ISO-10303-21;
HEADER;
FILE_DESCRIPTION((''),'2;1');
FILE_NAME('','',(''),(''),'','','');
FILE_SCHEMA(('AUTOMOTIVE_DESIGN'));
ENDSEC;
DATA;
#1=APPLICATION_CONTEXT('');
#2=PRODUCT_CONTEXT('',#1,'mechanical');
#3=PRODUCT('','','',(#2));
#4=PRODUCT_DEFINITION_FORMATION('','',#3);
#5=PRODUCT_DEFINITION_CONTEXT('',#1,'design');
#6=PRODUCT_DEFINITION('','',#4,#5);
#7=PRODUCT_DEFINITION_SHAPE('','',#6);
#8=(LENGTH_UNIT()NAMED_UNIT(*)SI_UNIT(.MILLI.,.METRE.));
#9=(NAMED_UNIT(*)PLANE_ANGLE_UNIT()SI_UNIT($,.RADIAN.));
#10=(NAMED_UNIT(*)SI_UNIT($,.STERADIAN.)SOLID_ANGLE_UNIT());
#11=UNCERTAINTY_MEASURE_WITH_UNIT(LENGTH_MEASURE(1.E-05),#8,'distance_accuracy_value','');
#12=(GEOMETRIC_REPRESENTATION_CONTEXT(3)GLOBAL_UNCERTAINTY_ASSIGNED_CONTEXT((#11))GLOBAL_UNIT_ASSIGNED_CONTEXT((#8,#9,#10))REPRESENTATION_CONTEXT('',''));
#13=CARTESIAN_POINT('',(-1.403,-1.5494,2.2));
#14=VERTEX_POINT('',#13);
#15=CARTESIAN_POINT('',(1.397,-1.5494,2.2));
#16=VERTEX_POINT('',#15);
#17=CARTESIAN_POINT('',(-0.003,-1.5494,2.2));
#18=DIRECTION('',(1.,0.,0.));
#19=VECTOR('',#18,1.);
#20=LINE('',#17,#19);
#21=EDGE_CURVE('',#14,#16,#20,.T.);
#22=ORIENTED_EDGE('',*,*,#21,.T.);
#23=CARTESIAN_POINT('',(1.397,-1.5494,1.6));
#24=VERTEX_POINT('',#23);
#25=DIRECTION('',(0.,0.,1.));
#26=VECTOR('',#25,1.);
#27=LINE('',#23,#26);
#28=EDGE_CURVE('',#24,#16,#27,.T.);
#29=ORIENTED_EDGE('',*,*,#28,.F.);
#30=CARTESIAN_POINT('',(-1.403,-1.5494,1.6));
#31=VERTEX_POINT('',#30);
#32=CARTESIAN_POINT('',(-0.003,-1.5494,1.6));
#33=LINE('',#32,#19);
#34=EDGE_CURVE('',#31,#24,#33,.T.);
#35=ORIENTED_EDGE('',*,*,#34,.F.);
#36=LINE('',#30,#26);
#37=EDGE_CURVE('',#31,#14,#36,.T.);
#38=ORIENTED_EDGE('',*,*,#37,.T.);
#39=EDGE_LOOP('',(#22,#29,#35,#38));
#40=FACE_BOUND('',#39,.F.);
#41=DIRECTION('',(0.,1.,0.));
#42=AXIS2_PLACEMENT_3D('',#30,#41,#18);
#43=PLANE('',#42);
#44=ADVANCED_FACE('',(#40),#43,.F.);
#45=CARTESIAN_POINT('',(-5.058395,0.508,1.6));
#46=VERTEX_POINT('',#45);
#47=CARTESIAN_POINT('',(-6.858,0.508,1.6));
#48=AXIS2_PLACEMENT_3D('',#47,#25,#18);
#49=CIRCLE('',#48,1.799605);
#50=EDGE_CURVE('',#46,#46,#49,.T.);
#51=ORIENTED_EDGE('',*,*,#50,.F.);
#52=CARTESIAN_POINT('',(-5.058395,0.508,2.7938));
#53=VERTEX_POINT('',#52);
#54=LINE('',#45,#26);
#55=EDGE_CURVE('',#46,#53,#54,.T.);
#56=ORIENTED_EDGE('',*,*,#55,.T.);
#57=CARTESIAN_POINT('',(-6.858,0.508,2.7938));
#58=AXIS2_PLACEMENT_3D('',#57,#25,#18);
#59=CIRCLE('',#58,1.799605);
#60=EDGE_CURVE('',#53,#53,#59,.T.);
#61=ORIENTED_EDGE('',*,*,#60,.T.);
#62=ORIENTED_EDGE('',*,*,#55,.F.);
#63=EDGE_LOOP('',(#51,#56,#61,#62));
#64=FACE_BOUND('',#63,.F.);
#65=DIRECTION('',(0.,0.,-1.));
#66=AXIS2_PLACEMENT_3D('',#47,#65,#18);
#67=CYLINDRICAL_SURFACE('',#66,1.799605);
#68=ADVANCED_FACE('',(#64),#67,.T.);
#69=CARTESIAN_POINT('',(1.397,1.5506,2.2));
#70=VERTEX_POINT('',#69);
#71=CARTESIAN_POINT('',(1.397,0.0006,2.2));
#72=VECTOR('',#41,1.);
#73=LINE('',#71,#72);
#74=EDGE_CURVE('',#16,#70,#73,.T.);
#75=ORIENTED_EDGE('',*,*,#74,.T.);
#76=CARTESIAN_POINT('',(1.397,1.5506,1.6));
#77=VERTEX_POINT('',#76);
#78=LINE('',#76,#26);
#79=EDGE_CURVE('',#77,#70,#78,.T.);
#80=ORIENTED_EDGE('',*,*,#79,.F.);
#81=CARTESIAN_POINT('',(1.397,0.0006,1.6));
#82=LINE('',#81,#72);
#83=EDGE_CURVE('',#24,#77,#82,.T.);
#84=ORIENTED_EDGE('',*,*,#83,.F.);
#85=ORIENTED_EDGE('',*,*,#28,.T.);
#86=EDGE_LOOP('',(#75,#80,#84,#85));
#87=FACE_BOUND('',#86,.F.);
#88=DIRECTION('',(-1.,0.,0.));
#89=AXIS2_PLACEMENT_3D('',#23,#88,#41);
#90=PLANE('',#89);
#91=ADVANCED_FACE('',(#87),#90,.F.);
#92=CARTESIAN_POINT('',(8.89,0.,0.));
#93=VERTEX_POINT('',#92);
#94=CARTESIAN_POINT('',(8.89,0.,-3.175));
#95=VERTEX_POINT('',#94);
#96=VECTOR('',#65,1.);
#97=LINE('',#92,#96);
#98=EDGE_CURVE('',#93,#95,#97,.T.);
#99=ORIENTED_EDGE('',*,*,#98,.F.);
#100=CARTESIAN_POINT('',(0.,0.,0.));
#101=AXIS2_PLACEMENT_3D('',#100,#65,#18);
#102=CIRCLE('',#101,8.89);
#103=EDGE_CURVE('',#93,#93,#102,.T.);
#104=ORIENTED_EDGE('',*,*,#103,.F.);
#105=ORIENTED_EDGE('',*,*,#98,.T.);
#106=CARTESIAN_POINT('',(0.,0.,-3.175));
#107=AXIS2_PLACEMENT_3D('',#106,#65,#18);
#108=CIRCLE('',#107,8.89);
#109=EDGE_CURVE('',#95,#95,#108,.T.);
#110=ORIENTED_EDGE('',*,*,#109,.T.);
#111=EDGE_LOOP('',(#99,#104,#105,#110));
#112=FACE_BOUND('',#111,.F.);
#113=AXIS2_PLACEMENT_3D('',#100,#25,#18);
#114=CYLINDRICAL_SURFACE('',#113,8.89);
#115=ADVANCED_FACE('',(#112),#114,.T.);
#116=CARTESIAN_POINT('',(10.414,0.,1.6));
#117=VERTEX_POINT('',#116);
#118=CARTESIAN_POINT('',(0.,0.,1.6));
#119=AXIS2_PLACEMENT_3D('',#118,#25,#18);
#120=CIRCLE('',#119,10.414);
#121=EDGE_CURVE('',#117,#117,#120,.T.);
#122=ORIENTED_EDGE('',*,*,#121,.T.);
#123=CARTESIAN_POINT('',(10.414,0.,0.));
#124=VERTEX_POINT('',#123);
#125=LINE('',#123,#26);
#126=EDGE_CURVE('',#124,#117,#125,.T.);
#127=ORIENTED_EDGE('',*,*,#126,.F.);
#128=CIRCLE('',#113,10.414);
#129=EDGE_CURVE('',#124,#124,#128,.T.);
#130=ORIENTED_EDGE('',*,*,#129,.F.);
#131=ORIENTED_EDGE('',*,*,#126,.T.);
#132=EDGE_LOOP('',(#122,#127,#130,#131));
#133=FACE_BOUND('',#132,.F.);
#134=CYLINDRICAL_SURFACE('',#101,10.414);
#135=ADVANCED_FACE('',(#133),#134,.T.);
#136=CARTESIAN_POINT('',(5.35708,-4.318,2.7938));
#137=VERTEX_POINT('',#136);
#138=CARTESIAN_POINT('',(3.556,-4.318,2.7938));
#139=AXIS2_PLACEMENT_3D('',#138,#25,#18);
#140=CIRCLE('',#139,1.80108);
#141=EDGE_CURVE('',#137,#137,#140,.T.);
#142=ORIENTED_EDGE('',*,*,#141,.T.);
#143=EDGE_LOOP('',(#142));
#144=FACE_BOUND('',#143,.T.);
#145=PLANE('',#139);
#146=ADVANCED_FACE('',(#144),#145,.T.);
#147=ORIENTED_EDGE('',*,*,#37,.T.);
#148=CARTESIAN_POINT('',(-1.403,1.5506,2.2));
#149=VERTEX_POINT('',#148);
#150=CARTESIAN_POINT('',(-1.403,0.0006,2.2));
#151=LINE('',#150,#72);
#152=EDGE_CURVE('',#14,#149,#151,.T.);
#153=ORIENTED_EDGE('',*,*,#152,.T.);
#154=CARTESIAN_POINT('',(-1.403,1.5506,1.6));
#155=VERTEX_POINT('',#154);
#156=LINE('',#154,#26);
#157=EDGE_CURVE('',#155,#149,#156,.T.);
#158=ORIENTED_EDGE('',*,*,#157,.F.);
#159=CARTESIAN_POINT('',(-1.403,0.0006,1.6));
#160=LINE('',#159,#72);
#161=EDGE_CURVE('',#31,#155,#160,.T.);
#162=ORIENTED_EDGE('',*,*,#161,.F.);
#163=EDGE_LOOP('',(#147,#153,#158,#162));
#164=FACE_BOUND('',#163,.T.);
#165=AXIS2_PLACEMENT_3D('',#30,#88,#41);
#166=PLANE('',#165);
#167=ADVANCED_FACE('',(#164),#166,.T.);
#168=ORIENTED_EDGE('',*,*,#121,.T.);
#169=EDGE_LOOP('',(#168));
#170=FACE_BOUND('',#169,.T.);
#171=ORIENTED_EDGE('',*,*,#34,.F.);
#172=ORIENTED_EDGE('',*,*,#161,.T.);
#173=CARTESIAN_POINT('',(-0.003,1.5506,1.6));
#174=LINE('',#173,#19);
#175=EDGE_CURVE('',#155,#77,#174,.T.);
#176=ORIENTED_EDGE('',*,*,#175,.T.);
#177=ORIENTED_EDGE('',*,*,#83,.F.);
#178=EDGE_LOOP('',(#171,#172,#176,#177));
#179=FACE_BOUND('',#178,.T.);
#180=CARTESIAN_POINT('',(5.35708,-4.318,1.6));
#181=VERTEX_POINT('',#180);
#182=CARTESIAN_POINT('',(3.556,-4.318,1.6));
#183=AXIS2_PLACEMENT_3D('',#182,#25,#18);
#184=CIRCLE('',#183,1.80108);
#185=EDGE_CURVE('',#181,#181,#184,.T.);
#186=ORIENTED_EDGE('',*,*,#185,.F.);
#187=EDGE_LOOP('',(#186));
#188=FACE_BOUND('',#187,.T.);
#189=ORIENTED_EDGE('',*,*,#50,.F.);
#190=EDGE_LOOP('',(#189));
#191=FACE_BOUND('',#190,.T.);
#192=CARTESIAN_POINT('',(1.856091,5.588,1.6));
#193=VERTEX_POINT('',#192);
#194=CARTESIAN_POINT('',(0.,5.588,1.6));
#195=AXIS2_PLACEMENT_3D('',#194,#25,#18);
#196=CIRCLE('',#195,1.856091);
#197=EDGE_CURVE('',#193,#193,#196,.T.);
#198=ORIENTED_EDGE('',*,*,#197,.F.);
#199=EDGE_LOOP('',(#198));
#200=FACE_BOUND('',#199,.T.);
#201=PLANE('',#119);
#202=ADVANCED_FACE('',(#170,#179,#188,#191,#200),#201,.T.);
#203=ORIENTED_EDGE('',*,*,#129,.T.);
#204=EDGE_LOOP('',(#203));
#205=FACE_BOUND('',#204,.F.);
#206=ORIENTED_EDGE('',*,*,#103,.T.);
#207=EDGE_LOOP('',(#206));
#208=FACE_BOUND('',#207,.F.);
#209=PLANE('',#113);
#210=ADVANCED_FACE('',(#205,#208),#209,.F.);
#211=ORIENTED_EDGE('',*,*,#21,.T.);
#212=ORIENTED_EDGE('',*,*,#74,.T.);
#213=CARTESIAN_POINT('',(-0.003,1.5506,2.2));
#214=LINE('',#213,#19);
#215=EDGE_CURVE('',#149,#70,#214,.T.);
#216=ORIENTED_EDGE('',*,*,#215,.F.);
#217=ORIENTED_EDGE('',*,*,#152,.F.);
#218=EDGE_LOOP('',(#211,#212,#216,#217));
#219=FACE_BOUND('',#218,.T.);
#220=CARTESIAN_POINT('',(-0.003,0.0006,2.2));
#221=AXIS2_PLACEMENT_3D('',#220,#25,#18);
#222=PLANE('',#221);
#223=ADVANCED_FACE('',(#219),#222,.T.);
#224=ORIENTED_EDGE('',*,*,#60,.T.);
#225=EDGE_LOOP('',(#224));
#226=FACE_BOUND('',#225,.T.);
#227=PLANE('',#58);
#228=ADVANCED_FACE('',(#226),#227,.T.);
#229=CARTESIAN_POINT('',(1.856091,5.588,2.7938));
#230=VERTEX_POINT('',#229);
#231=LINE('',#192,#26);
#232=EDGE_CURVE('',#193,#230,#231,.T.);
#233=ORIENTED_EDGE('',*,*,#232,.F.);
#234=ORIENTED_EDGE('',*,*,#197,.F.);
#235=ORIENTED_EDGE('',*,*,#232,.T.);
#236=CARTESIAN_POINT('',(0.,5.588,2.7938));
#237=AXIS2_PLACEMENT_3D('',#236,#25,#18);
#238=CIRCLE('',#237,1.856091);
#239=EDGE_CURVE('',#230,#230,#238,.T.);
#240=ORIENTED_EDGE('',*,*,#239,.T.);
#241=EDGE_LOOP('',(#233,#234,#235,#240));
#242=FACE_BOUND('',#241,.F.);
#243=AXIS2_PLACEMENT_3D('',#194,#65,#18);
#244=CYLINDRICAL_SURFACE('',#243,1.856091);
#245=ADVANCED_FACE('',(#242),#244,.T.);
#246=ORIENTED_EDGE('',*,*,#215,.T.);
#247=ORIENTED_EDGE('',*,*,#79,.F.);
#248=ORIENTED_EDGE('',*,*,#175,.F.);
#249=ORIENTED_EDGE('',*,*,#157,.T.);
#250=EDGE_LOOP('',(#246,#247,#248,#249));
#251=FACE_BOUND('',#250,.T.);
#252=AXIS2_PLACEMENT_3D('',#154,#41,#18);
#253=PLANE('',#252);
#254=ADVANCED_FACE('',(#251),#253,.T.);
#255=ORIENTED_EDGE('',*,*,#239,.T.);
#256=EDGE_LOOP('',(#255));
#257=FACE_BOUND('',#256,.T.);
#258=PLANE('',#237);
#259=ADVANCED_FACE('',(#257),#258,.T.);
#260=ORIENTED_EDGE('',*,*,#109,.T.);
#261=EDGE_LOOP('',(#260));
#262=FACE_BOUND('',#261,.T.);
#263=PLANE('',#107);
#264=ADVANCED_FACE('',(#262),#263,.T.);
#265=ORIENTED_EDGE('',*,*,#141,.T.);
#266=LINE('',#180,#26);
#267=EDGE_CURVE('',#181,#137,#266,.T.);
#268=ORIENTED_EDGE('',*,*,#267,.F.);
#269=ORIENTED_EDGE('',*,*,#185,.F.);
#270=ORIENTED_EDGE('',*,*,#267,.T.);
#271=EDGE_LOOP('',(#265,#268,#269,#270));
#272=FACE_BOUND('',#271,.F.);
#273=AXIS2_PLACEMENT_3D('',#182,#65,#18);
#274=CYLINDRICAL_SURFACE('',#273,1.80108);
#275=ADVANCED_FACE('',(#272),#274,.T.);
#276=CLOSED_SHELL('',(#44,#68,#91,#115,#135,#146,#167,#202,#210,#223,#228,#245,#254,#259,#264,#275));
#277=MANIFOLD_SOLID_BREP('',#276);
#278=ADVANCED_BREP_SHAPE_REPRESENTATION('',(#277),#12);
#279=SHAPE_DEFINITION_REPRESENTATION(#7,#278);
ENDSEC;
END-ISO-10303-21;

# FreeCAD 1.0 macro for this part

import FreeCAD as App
import Part
import Sketcher

V = App.Vector
Q = App.Units.Quantity

doc = App.newDocument("Part")
body = doc.addObject("PartDesign::Body", "Body")

sketch1 = doc.addObject("Sketcher::SketchObject", "Sketch")
body.addObject(sketch1)
sketch1.AttachmentSupport = (doc.XY_Plane, [""])
sketch1.MapMode = "FlatFace"
sketch1.addGeometry(Part.Circle(V(0, 0, 0), V(0, 0, 1), 10.414), False)
sketch1.addConstraint(Sketcher.Constraint("Coincident", 0, 3, -1, 1))
sketch1.addConstraint(Sketcher.Constraint("Diameter", 0, Q("20.828 mm")))
pad1 = doc.addObject("PartDesign::Pad", "Pad")
body.addObject(pad1)
pad1.Profile = sketch1
pad1.Length = 1.6

sketch2 = doc.addObject("Sketcher::SketchObject", "Sketch001")
body.addObject(sketch2)
sketch2.AttachmentSupport = (doc.XY_Plane, [""])
sketch2.MapMode = "FlatFace"
sketch2.addGeometry(Part.Circle(V(0, 0, 0), V(0, 0, 1), 8.89), False)
sketch2.addConstraint(Sketcher.Constraint("Coincident", 0, 3, -1, 1))
sketch2.addConstraint(Sketcher.Constraint("Diameter", 0, Q("17.78 mm")))
pad2 = doc.addObject("PartDesign::Pad", "Pad001")
body.addObject(pad2)
pad2.Profile = sketch2
pad2.Length = 3.175
pad2.Reversed = True

sketch3 = doc.addObject("Sketcher::SketchObject", "Sketch002")
body.addObject(sketch3)
sketch3.AttachmentSupport = (doc.XY_Plane, [""])
sketch3.MapMode = "FlatFace"
sketch3.AttachmentOffset = App.Placement(V(0, 0, 1.6), App.Rotation())
sketch3.addGeometry(Part.Circle(V(0, 5.588, 0), V(0, 0, 1), 1.856091), False)
sketch3.addGeometry(Part.Circle(V(3.556, -4.318, 0), V(0, 0, 1), 1.80108), False)
sketch3.addGeometry(Part.Circle(V(-6.858, 0.508, 0), V(0, 0, 1), 1.799605), False)
sketch3.addConstraint(Sketcher.Constraint("PointOnObject", 0, 3, -2))
sketch3.addConstraint(Sketcher.Constraint("Diameter", 0, Q("3.712182 mm")))
sketch3.addConstraint(Sketcher.Constraint("Diameter", 1, Q("3.60216 mm")))
sketch3.addConstraint(Sketcher.Constraint("Diameter", 2, Q("3.59921 mm")))
sketch3.addConstraint(Sketcher.Constraint("DistanceY", 2, 3, 0, 3, Q("5.08 mm")))
sketch3.addConstraint(Sketcher.Constraint("DistanceY", -1, 1, 0, 3, Q("5.588 mm")))
sketch3.addConstraint(Sketcher.Constraint("DistanceX", -1, 1, 1, 3, Q("3.556 mm")))
sketch3.addConstraint(Sketcher.Constraint("DistanceY", 1, 3, -1, 1, Q("4.318 mm")))
sketch3.addConstraint(Sketcher.Constraint("DistanceX", 2, 3, -1, 1, Q("6.858 mm")))
pad3 = doc.addObject("PartDesign::Pad", "Pad002")
body.addObject(pad3)
pad3.Profile = sketch3
pad3.Length = 1.1938

sketch4 = doc.addObject("Sketcher::SketchObject", "Sketch003")
body.addObject(sketch4)
sketch4.AttachmentSupport = (doc.XY_Plane, [""])
sketch4.MapMode = "FlatFace"
sketch4.AttachmentOffset = App.Placement(V(0, 0, 1.6), App.Rotation())
sketch4.addGeometry(Part.LineSegment(V(-1.403, 1.5506, 0), V(-1.403, -1.5494, 0)), False)
sketch4.addGeometry(Part.LineSegment(V(-1.403, -1.5494, 0), V(1.397, -1.5494, 0)), False)
sketch4.addGeometry(Part.LineSegment(V(1.397, -1.5494, 0), V(1.397, 1.5506, 0)), False)
sketch4.addGeometry(Part.LineSegment(V(1.397, 1.5506, 0), V(-1.403, 1.5506, 0)), False)
sketch4.addConstraint(Sketcher.Constraint("Coincident", 0, 2, 1, 1))
sketch4.addConstraint(Sketcher.Constraint("Coincident", 1, 2, 2, 1))
sketch4.addConstraint(Sketcher.Constraint("Coincident", 2, 2, 3, 1))
sketch4.addConstraint(Sketcher.Constraint("Coincident", 3, 2, 0, 1))
sketch4.addConstraint(Sketcher.Constraint("Vertical", 0))
sketch4.addConstraint(Sketcher.Constraint("Horizontal", 1))
sketch4.addConstraint(Sketcher.Constraint("Vertical", 2))
sketch4.addConstraint(Sketcher.Constraint("Horizontal", 3))
sketch4.addConstraint(Sketcher.Constraint("DistanceX", 1, 1, 1, 2, Q("2.8 mm")))
sketch4.addConstraint(Sketcher.Constraint("DistanceY", 0, 2, 0, 1, Q("3.1 mm")))
sketch4.addConstraint(Sketcher.Constraint("DistanceX", 0, 2, -1, 1, Q("1.403 mm")))
sketch4.addConstraint(Sketcher.Constraint("DistanceY", 0, 2, -1, 1, Q("1.5494 mm")))
pad4 = doc.addObject("PartDesign::Pad", "Pad003")
body.addObject(pad4)
pad4.Profile = sketch4
pad4.Length = 0.6

doc.recompute()
